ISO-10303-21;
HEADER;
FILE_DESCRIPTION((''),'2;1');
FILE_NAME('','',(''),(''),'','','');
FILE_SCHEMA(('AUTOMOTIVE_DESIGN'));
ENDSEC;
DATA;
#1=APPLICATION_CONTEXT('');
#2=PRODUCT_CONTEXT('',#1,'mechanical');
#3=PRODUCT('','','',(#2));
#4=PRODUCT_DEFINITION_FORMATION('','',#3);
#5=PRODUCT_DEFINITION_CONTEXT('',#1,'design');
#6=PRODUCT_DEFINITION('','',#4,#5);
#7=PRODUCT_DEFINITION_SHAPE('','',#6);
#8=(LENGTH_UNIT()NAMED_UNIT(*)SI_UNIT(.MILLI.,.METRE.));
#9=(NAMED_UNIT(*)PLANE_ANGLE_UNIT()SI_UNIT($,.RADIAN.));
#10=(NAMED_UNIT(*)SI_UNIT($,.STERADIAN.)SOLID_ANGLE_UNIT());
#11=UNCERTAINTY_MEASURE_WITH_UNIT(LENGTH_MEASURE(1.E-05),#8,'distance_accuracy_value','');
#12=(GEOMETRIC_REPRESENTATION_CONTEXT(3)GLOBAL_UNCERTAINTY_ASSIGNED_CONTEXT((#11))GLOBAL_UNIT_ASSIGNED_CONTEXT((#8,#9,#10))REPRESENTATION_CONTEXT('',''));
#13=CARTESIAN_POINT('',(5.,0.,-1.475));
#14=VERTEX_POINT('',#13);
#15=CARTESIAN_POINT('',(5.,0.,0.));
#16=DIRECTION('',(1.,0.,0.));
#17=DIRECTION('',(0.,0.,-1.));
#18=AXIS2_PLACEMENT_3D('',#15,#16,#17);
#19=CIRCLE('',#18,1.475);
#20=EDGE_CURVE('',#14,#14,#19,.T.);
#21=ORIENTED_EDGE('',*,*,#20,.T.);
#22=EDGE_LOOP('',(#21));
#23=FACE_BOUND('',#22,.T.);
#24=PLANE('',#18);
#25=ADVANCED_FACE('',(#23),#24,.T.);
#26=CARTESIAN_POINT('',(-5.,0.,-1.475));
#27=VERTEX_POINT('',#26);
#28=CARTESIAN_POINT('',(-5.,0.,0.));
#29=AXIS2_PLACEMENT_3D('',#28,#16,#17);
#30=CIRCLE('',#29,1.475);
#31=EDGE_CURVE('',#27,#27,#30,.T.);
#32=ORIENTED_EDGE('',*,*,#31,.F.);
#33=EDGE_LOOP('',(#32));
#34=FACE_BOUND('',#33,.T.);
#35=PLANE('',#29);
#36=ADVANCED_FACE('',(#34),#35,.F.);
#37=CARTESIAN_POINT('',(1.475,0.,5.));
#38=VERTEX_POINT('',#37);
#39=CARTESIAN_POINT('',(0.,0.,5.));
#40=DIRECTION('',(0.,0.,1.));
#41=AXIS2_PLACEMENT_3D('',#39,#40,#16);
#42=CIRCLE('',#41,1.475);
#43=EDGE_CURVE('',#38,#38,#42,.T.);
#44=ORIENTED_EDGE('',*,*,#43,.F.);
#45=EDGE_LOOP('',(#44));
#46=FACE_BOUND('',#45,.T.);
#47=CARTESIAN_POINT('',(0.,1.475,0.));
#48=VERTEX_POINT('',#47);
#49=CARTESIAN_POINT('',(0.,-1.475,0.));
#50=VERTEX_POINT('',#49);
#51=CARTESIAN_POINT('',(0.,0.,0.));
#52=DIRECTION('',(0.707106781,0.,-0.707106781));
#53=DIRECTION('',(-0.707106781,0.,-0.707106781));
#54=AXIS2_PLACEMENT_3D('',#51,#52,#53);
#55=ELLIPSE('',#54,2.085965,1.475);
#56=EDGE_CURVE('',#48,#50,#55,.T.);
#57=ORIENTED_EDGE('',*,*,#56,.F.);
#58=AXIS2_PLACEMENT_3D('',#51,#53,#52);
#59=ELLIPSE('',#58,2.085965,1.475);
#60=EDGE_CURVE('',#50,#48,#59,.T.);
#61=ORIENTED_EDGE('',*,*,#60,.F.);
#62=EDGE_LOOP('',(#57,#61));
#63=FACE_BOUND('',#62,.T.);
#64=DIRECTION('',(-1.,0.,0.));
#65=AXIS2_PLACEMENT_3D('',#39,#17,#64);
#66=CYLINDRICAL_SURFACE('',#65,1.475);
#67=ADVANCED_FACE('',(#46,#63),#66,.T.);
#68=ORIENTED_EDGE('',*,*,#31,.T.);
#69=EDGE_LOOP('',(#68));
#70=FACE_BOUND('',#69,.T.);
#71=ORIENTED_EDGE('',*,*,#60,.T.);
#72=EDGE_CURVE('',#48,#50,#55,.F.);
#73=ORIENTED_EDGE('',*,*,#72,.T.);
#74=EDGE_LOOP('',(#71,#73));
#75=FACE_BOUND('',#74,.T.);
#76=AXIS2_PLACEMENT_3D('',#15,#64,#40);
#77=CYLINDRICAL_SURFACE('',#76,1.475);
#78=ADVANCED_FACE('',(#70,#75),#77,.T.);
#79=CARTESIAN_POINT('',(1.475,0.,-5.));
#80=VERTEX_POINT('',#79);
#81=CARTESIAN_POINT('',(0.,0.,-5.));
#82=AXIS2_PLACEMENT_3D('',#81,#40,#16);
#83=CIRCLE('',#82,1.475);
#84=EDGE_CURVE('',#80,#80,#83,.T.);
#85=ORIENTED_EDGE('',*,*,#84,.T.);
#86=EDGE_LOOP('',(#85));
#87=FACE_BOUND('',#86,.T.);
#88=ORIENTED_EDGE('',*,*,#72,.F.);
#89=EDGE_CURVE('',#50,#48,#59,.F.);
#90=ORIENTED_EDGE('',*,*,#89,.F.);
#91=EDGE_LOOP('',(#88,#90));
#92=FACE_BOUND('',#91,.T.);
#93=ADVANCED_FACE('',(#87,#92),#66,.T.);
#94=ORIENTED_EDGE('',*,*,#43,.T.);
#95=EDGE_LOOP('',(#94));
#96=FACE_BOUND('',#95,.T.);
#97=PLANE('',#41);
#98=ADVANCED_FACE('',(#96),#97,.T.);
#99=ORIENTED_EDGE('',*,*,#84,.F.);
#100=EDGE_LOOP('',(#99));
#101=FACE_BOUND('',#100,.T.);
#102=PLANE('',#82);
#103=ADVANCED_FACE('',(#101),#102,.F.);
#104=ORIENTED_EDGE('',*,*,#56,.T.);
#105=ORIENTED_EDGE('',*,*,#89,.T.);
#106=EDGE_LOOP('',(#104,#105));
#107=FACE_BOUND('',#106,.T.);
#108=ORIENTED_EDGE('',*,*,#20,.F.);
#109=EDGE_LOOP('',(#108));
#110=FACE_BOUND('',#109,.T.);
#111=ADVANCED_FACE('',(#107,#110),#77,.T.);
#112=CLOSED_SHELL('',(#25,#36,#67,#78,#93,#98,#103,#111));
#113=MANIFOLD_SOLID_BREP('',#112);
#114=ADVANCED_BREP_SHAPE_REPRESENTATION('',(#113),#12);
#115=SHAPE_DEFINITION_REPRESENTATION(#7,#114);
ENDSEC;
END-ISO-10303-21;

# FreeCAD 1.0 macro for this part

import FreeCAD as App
import Part
import Sketcher
Q = App.Units.Quantity

doc = App.newDocument("Part")
body = doc.addObject("PartDesign::Body", "Body")

# Sketch on XY plane
sketch1 = body.newObject("Sketcher::SketchObject", "Sketch")
sketch1.AttachmentSupport = (doc.getObject("XY_Plane"), [""])
sketch1.MapMode = "FlatFace"
sketch1.addGeometry(Part.Circle(App.Vector(0, 0, 0), App.Vector(0, 0, 1), 1.475), False)
sketch1.addConstraint([
    Sketcher.Constraint("Coincident", 0, 3, -1, 1),
    Sketcher.Constraint("Diameter", 0, Q("2.95 mm")),
])
pad1 = body.newObject("PartDesign::Pad", "Pad")
pad1.Profile = sketch1
pad1.Length = 10
pad1.Midplane = True

# Sketch on YZ plane
sketch2 = body.newObject("Sketcher::SketchObject", "Sketch001")
sketch2.AttachmentSupport = (doc.getObject("YZ_Plane"), [""])
sketch2.MapMode = "FlatFace"
sketch2.addGeometry(Part.Circle(App.Vector(0, 0, 0), App.Vector(0, 0, 1), 1.475), False)
sketch2.addConstraint([
    Sketcher.Constraint("Coincident", 0, 3, -1, 1),
    Sketcher.Constraint("Diameter", 0, Q("2.95 mm")),
])
pad2 = body.newObject("PartDesign::Pad", "Pad001")
pad2.Profile = sketch2
pad2.Length = 10
pad2.Midplane = True

doc.recompute()
